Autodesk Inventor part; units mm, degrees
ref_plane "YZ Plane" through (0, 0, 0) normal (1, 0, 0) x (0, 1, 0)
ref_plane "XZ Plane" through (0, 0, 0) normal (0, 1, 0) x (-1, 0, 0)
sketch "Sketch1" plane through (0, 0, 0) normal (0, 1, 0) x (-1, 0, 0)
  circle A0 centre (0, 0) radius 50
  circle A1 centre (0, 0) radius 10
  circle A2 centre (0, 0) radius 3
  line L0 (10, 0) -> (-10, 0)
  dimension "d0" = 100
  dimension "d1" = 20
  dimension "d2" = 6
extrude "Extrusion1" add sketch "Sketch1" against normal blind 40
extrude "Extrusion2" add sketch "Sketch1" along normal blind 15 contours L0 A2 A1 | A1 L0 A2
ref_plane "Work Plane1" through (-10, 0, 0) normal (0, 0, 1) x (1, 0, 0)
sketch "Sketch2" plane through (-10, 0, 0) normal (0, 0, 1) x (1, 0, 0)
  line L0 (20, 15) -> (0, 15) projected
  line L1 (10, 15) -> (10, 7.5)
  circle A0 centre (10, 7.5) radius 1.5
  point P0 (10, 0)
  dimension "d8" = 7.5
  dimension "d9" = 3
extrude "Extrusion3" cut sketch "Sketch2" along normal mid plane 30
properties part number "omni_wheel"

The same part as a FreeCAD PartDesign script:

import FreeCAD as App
import Part
import Sketcher

doc = App.newDocument("Part")
body = doc.addObject("PartDesign::Body", "Body")
body.AllowCompound = True

# Sketch on XZ plane
sketch1 = body.newObject("Sketcher::SketchObject", "Sketch")
sketch1.AttachmentSupport = (doc.getObject("XZ_Plane"), [""])
sketch1.MapMode = "FlatFace"
sketch1.addGeometry([
    Part.Circle(App.Vector(0, 0, 0), App.Vector(0, 0, 1), 50),
    Part.Circle(App.Vector(0, 0, 0), App.Vector(0, 0, 1), 10),
], False)
sketch1.addConstraint([
    Sketcher.Constraint("Coincident", 0, 3, -1, 1),
    Sketcher.Constraint("Coincident", 1, 3, -1, 1),
    Sketcher.Constraint("Diameter", 0, 100.0),
    Sketcher.Constraint("Diameter", 1, 20.0),
])
pad1 = body.newObject("PartDesign::Pad", "Pad")
pad1.Profile = sketch1
pad1.Length = 40

# Sketch on XZ plane
sketch2 = body.newObject("Sketcher::SketchObject", "Sketch001")
sketch2.AttachmentSupport = (doc.getObject("XZ_Plane"), [""])
sketch2.MapMode = "FlatFace"
sketch2.addGeometry([
    Part.Circle(App.Vector(0, 0, 0), App.Vector(0, 0, 1), 10),
    Part.Circle(App.Vector(0, 0, 0), App.Vector(0, 0, 1), 3),
], False)
sketch2.addConstraint([
    Sketcher.Constraint("Coincident", 0, 3, -1, 1),
    Sketcher.Constraint("Coincident", 1, 3, -1, 1),
    Sketcher.Constraint("Diameter", 0, 20.0),
    Sketcher.Constraint("Diameter", 1, 6.0),
])
pad2 = body.newObject("PartDesign::Pad", "Pad001")
pad2.Profile = sketch2
pad2.Length = 15
pad2.Reversed = True

# Sketch on XY plane
sketch3 = body.newObject("Sketcher::SketchObject", "Sketch002")
sketch3.AttachmentSupport = (doc.getObject("XY_Plane"), [""])
sketch3.MapMode = "FlatFace"
sketch3.addGeometry(Part.Circle(App.Vector(0, 7.5, 0), App.Vector(0, 0, 1), 1.5), False)
sketch3.addConstraint([
    Sketcher.Constraint("PointOnObject", 0, 3, -2),
    Sketcher.Constraint("Diameter", 0, 3.0),
    Sketcher.Constraint("DistanceY", -1, 1, 0, 3, 7.5),
])
pocket1 = body.newObject("PartDesign::Pocket", "Pocket")
pocket1.Profile = sketch3
pocket1.Length = 30
pocket1.Midplane = True

doc.recompute()
